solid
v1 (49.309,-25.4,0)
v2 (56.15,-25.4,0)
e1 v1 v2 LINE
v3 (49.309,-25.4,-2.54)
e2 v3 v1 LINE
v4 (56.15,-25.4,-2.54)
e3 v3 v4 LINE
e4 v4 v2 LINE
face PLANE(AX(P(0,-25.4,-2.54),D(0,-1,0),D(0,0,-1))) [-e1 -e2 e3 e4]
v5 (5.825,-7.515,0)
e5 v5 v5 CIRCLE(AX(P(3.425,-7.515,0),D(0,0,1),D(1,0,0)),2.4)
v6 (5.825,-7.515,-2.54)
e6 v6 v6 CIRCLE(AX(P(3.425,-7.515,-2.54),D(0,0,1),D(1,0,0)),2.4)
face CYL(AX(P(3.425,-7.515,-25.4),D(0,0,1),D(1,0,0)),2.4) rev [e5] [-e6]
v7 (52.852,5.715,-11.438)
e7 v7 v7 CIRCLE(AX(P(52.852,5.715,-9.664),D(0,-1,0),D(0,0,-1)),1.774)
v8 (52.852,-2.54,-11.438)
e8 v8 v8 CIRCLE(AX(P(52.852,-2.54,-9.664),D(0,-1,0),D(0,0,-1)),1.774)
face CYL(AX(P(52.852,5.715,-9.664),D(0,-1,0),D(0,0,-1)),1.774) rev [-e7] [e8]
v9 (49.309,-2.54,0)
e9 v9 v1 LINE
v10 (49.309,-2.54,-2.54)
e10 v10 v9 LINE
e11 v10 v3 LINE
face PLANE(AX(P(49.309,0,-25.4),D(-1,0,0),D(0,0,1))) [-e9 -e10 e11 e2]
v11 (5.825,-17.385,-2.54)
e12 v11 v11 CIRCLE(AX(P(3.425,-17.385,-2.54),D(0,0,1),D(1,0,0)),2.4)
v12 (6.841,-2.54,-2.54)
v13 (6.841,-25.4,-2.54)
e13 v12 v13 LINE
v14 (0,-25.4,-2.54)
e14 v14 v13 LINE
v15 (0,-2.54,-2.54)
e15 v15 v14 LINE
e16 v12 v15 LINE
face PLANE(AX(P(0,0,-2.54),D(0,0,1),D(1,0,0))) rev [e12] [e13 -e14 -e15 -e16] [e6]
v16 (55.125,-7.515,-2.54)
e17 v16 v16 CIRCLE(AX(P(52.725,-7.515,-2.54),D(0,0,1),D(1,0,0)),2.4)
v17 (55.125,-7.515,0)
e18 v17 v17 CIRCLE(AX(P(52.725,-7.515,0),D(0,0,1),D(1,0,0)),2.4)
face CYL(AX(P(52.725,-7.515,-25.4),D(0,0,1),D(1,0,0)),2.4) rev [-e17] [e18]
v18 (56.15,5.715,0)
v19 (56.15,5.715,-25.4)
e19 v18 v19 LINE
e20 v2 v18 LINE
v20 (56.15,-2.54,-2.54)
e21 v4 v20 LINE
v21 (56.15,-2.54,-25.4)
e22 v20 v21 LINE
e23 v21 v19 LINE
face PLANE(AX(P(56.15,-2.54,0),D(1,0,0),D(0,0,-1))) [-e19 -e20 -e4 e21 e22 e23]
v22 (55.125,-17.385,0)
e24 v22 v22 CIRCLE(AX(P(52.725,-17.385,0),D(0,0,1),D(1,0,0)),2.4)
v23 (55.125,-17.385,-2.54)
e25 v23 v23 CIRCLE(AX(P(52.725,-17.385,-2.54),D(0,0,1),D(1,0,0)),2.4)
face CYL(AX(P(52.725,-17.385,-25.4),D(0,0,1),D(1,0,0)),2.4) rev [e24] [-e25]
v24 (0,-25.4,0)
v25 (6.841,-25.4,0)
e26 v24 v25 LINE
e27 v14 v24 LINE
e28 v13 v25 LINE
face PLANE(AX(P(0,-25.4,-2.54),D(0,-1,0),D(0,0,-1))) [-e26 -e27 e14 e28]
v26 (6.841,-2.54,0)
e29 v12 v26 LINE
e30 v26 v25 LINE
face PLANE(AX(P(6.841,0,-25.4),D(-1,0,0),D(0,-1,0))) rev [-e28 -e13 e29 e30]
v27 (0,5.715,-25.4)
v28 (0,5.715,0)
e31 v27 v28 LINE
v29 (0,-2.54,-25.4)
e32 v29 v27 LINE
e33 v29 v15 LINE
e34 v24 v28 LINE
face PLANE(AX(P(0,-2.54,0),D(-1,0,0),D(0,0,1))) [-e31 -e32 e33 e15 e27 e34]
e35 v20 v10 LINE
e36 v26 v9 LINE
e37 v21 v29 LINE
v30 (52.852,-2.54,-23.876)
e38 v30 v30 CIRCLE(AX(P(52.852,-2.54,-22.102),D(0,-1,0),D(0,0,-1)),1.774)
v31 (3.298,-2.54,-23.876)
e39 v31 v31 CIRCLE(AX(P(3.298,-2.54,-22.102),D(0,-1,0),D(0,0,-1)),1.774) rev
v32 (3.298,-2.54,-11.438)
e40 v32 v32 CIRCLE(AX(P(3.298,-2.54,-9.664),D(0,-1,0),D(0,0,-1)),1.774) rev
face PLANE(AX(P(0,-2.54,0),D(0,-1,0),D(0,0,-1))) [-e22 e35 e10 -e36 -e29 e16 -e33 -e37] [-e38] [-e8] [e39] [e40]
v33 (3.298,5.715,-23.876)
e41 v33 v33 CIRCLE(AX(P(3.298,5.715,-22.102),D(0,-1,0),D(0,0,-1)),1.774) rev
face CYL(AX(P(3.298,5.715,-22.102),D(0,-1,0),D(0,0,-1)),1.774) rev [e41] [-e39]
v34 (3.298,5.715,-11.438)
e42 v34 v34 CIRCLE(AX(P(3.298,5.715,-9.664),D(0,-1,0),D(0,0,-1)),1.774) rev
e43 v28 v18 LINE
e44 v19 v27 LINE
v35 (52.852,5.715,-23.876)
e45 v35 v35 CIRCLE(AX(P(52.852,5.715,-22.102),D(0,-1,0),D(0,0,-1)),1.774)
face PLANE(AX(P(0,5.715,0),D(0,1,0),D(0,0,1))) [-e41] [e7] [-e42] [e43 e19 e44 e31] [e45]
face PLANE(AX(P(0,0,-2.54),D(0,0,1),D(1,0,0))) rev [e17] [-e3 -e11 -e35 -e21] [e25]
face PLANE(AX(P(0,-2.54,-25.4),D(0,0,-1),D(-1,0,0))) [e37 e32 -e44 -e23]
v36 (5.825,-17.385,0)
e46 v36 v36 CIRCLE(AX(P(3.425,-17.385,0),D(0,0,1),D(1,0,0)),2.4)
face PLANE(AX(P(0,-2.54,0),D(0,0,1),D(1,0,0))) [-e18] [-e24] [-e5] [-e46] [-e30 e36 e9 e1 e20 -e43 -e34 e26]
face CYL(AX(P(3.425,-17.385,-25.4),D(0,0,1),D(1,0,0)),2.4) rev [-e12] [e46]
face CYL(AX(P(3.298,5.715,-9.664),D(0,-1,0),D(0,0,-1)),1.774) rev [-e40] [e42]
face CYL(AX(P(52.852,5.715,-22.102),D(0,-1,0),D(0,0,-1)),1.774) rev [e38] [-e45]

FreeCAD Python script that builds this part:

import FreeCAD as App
import Part
import Sketcher

V = App.Vector
Q = App.Units.Quantity


def add_polygon(sketch, points):
    """Adds a closed chain of lines whose ends are joined by coincident constraints."""
    first, n = sketch.GeometryCount, len(points)
    for a, b in zip(points, points[1:] + points[:1]):
        sketch.addGeometry(Part.LineSegment(App.Vector(*a, 0), App.Vector(*b, 0)), False)
    for i in range(n):
        sketch.addConstraint(Sketcher.Constraint("Coincident", first + i, 2, first + (i + 1) % n, 1))

doc = App.newDocument("Part")
params = doc.addObject("Spreadsheet::Sheet", "Params")
for row, (alias, value) in enumerate([
    ("sketch1_height", "1 in"),
    ("pad1_length", "0.1 in"),
    ("sketch2_height", "1 in"),
    ("pad2_length", "0.1 in"),
    ("sketch4_height", "1 in"),
    ("pad3_length", "0.225 in"),
    ("sketch6_height", "0.9 in"),
], start=1):
    params.set(f"A{row}", alias)
    params.set(f"B{row}", "=" + value)
    params.setAlias(f"B{row}", alias)

body = doc.addObject("PartDesign::Body", "Body")

sketch1 = body.newObject("Sketcher::SketchObject", "Sketch")
sketch1.AttachmentSupport = (doc.getObject("XZ_Plane"), [""])
sketch1.MapMode = "FlatFace"
add_polygon(sketch1, [(0, -25), (0, 0), (56, 0), (56, -25)])
sketch1.addConstraint(Sketcher.Constraint("Vertical", 0))
sketch1.addConstraint(Sketcher.Constraint("Horizontal", 1))
sketch1.addConstraint(Sketcher.Constraint("Vertical", 2))
sketch1.addConstraint(Sketcher.Constraint("Horizontal", 3))
sketch1.addConstraint(Sketcher.Constraint("Coincident", 0, 2, -1, 1))
sketch1.addConstraint(Sketcher.Constraint("DistanceY", 0, 1, 0, 2, Q("1 in")))
sketch1.addConstraint(Sketcher.Constraint("DistanceX", 1, 1, 1, 2, 56.15))
sketch1.setExpression("Constraints[9]", "Params.sketch1_height")
pad1 = body.newObject("PartDesign::Pad", "Pad")
pad1.Profile = sketch1
pad1.setExpression("Length", "Params.pad1_length")

sketch2 = body.newObject("Sketcher::SketchObject", "Sketch001")
sketch2.AttachmentSupport = (doc.getObject("XY_Plane"), [""])
sketch2.MapMode = "FlatFace"
add_polygon(sketch2, [(0, 0), (0, -25), (56, -25), (56, 0)])
sketch2.addConstraint(Sketcher.Constraint("Vertical", 0))
sketch2.addConstraint(Sketcher.Constraint("Horizontal", 1))
sketch2.addConstraint(Sketcher.Constraint("Vertical", 2))
sketch2.addConstraint(Sketcher.Constraint("Horizontal", 3))
sketch2.addConstraint(Sketcher.Constraint("Coincident", 3, 2, -1, 1))
sketch2.addConstraint(Sketcher.Constraint("DistanceY", 0, 2, 0, 1, Q("1 in")))
sketch2.addConstraint(Sketcher.Constraint("DistanceX", 1, 1, 1, 2, 56.15))
sketch2.setExpression("Constraints[9]", "Params.sketch2_height")
pad2 = body.newObject("PartDesign::Pad", "Pad001")
pad2.Profile = sketch2
pad2.setExpression("Length", "Params.pad2_length")
pad2.Reversed = True

sketch3 = body.newObject("Sketcher::SketchObject", "Sketch002")
sketch3.AttachmentSupport = (doc.getObject("XY_Plane"), [""])
sketch3.MapMode = "FlatFace"
sketch3.addGeometry(Part.Circle(V(3.4, -7.5, 0), V(0, 0, 1), 2.4), False)
sketch3.addGeometry(Part.Circle(V(3.4, -17.4, 0), V(0, 0, 1), 2.4), False)
sketch3.addGeometry(Part.Circle(V(52.7, -7.5, 0), V(0, 0, 1), 2.4), False)
sketch3.addGeometry(Part.Circle(V(52.7, -17.4, 0), V(0, 0, 1), 2.4), False)
sketch3.addConstraint(Sketcher.Constraint("Equal", 0, 1))
sketch3.addConstraint(Sketcher.Constraint("Equal", 1, 2))
sketch3.addConstraint(Sketcher.Constraint("Equal", 2, 3))
sketch3.addConstraint(Sketcher.Constraint("Horizontal", 0, 3, 2, 3))
sketch3.addConstraint(Sketcher.Constraint("Horizontal", 1, 3, 3, 3))
sketch3.addConstraint(Sketcher.Constraint("Vertical", 0, 3, 1, 3))
sketch3.addConstraint(Sketcher.Constraint("Vertical", 2, 3, 3, 3))
sketch3.addConstraint(Sketcher.Constraint("Diameter", 0, 4.8))
sketch3.addConstraint(Sketcher.Constraint("DistanceX", -1, 1, 0, 3, 3.425))
sketch3.addConstraint(Sketcher.Constraint("DistanceY", 0, 3, -1, 1, 7.515))
sketch3.addConstraint(Sketcher.Constraint("DistanceY", 1, 3, -1, 1, 17.385))
sketch3.addConstraint(Sketcher.Constraint("DistanceX", -1, 1, 2, 3, 52.725))
pocket1 = body.newObject("PartDesign::Pocket", "Pocket")
pocket1.Profile = sketch3
pocket1.Type = "ThroughAll"

sketch4 = body.newObject("Sketcher::SketchObject", "Sketch003")
sketch4.AttachmentSupport = (doc.getObject("XZ_Plane"), [""])
sketch4.MapMode = "FlatFace"
add_polygon(sketch4, [(0, -25), (0, 0), (56, 0), (56, -25)])
sketch4.addConstraint(Sketcher.Constraint("Vertical", 0))
sketch4.addConstraint(Sketcher.Constraint("Horizontal", 1))
sketch4.addConstraint(Sketcher.Constraint("Vertical", 2))
sketch4.addConstraint(Sketcher.Constraint("Horizontal", 3))
sketch4.addConstraint(Sketcher.Constraint("Coincident", 0, 2, -1, 1))
sketch4.addConstraint(Sketcher.Constraint("DistanceY", 0, 1, 0, 2, Q("1 in")))
sketch4.addConstraint(Sketcher.Constraint("DistanceX", 1, 1, 1, 2, 56.15))
sketch4.setExpression("Constraints[9]", "Params.sketch4_height")
pad3 = body.newObject("PartDesign::Pad", "Pad002")
pad3.Profile = sketch4
pad3.setExpression("Length", "Params.pad3_length")
pad3.Reversed = True

sketch5 = body.newObject("Sketcher::SketchObject", "Sketch004")
sketch5.AttachmentSupport = (doc.getObject("XZ_Plane"), [""])
sketch5.MapMode = "FlatFace"
sketch5.AttachmentOffset = App.Placement(V(0, 0, 0.1 * 25.4), App.Rotation())
sketch5.addGeometry(Part.Circle(V(52.9, -22.1, 0), V(0, 0, 1), 1.8), False)
sketch5.addGeometry(Part.Circle(V(52.9, -9.7, 0), V(0, 0, 1), 1.8), False)
sketch5.addGeometry(Part.Circle(V(3.3, -9.7, 0), V(0, 0, 1), 1.8), False)
sketch5.addGeometry(Part.Circle(V(3.3, -22.1, 0), V(0, 0, 1), 1.8), False)
sketch5.addConstraint(Sketcher.Constraint("Equal", 0, 1))
sketch5.addConstraint(Sketcher.Constraint("Equal", 1, 2))
sketch5.addConstraint(Sketcher.Constraint("Equal", 2, 3))
sketch5.addConstraint(Sketcher.Constraint("Horizontal", 1, 3, 2, 3))
sketch5.addConstraint(Sketcher.Constraint("Horizontal", 0, 3, 3, 3))
sketch5.addConstraint(Sketcher.Constraint("Vertical", 0, 3, 1, 3))
sketch5.addConstraint(Sketcher.Constraint("Vertical", 2, 3, 3, 3))
sketch5.addConstraint(Sketcher.Constraint("Diameter", 0, 3.548))
sketch5.addConstraint(Sketcher.Constraint("DistanceX", -1, 1, 0, 3, 52.852))
sketch5.addConstraint(Sketcher.Constraint("DistanceY", 0, 3, -1, 1, 22.102))
sketch5.addConstraint(Sketcher.Constraint("DistanceY", 1, 3, -1, 1, 9.664))
sketch5.addConstraint(Sketcher.Constraint("DistanceX", -1, 1, 2, 3, 3.298))
pocket2 = body.newObject("PartDesign::Pocket", "Pocket001")
pocket2.Profile = sketch5
pocket2.Type = "ThroughAll"

sketch6 = body.newObject("Sketcher::SketchObject", "Sketch005")
sketch6.AttachmentSupport = (doc.getObject("XY_Plane"), [""])
sketch6.MapMode = "FlatFace"
add_polygon(sketch6, [(49, -3), (7, -3), (7, -25), (49, -25)])
sketch6.addConstraint(Sketcher.Constraint("Horizontal", 0))
sketch6.addConstraint(Sketcher.Constraint("Vertical", 1))
sketch6.addConstraint(Sketcher.Constraint("Horizontal", 2))
sketch6.addConstraint(Sketcher.Constraint("Vertical", 3))
sketch6.addConstraint(Sketcher.Constraint("DistanceY", 1, 2, 1, 1, Q("0.9 in")))
sketch6.addConstraint(Sketcher.Constraint("DistanceY", 1, 2, -1, 1, Q("1 in")))
sketch6.addConstraint(Sketcher.Constraint("DistanceX", 0, 2, 0, 1, 42.468))
sketch6.addConstraint(Sketcher.Constraint("DistanceX", -1, 1, 0, 2, 6.841))
sketch6.setExpression("Constraints[8]", "Params.sketch6_height")
pocket3 = body.newObject("PartDesign::Pocket", "Pocket002")
pocket3.Profile = sketch6
pocket3.Type = "ThroughAll"

doc.recompute()
